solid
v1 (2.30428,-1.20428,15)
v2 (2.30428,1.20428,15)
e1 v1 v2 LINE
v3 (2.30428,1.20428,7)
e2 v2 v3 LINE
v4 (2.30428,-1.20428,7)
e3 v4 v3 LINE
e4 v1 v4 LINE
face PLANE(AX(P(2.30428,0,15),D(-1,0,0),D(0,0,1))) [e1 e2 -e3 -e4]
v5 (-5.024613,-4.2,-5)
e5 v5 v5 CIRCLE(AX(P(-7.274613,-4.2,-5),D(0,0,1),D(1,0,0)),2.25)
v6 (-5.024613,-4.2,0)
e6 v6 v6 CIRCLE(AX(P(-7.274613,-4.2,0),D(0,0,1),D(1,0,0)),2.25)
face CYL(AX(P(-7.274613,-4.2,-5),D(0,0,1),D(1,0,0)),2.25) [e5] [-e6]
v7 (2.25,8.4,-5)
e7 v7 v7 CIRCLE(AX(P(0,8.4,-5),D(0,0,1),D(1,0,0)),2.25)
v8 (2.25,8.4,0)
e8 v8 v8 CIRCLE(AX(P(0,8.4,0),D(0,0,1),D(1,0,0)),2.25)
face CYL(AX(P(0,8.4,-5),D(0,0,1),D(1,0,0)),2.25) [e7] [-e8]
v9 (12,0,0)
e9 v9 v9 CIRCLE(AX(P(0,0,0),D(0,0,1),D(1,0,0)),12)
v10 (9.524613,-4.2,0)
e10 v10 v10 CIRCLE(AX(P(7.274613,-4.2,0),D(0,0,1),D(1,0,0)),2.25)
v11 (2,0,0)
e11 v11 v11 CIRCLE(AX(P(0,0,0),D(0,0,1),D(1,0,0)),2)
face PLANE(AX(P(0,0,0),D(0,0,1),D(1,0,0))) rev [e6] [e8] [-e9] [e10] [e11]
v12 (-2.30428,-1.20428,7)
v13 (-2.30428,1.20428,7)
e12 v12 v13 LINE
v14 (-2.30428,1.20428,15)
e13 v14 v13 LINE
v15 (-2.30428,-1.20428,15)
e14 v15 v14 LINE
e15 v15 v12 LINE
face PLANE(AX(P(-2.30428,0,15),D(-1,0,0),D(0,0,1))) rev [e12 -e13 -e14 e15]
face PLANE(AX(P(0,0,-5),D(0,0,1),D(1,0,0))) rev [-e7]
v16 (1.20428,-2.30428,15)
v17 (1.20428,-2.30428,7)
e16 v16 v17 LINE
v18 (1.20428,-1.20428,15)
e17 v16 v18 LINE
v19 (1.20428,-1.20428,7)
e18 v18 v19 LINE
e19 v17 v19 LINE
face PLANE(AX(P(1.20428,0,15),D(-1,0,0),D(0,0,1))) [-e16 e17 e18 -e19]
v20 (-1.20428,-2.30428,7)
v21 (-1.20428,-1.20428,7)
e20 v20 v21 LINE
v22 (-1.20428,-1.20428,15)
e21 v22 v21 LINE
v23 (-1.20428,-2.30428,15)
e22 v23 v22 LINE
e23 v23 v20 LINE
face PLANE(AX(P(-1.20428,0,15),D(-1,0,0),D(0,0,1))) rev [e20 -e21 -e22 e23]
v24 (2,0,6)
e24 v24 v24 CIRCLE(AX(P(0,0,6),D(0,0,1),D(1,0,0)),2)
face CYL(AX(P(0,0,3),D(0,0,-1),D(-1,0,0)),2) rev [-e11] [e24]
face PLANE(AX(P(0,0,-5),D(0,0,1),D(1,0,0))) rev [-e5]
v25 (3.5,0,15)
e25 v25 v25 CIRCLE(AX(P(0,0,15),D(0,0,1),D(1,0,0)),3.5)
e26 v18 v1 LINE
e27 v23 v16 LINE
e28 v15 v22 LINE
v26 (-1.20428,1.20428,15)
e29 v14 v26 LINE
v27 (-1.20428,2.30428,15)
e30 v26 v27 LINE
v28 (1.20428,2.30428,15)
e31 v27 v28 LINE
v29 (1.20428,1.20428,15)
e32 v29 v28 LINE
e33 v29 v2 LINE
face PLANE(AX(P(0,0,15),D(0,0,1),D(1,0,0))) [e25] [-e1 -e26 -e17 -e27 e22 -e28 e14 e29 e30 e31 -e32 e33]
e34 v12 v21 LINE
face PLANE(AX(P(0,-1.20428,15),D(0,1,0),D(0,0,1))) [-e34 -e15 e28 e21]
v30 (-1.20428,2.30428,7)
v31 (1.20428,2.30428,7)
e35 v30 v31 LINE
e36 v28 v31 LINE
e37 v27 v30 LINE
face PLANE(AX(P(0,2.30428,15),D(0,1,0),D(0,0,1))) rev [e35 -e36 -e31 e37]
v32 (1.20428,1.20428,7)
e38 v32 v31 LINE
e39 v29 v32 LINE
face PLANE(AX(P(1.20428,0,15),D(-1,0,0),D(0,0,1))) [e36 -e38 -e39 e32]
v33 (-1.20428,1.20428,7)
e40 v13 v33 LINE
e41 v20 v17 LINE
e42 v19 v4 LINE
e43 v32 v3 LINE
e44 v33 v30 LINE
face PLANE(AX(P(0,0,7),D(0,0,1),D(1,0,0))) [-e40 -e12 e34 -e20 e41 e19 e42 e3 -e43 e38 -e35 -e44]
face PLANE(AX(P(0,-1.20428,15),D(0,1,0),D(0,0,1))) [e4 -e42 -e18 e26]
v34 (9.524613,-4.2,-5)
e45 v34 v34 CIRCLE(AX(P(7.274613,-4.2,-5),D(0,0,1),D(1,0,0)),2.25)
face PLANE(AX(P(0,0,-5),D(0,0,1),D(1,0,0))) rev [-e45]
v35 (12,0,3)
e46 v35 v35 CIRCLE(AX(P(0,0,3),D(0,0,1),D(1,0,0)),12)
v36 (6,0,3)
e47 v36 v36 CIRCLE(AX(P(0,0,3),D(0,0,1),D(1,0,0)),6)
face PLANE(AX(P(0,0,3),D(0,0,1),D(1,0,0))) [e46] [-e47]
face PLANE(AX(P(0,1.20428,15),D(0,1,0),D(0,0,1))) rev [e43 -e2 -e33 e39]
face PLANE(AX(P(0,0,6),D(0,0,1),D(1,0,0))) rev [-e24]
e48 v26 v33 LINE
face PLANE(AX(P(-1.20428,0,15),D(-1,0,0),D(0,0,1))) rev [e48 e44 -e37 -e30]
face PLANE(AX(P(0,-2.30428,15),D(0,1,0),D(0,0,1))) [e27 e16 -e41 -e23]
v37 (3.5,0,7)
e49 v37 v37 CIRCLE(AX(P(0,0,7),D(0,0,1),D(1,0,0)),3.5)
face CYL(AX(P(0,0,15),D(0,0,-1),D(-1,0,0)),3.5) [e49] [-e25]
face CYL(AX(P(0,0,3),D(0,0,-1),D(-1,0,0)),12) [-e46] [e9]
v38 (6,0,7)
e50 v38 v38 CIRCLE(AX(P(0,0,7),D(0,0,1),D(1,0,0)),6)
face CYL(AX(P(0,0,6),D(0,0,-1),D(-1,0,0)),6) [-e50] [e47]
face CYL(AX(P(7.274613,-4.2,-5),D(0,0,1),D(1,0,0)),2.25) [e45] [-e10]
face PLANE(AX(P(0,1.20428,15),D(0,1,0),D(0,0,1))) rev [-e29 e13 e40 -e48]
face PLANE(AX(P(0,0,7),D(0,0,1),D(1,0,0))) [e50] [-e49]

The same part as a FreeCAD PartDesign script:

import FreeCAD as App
import Part
import Sketcher

V = App.Vector


def add_polygon(sketch, points):
    """Adds a closed chain of lines whose ends are joined by coincident constraints."""
    first, n = sketch.GeometryCount, len(points)
    for a, b in zip(points, points[1:] + points[:1]):
        sketch.addGeometry(Part.LineSegment(App.Vector(*a, 0), App.Vector(*b, 0)), False)
    for i in range(n):
        sketch.addConstraint(Sketcher.Constraint("Coincident", first + i, 2, first + (i + 1) % n, 1))

doc = App.newDocument("Part")
body = doc.addObject("PartDesign::Body", "Body")

sketch1 = body.newObject("Sketcher::SketchObject", "Sketch")
sketch1.AttachmentSupport = (doc.getObject("XY_Plane"), [""])
sketch1.MapMode = "FlatFace"
sketch1.addGeometry([
    Part.Circle(V(0, 0, 0), V(0, 0, 1), 12),
    Part.Circle(V(0, 0, 0), V(0, 0, 1), 2),
], False)
sketch1.addConstraint([
    Sketcher.Constraint("Coincident", 0, 3, -1, 1),
    Sketcher.Constraint("Coincident", 1, 3, -1, 1),
    Sketcher.Constraint("Diameter", 0, 24.0),
    Sketcher.Constraint("Diameter", 1, 4.0),
])
pad1 = body.newObject("PartDesign::Pad", "Pad")
pad1.Profile = sketch1
pad1.Length = 3

sketch2 = body.newObject("Sketcher::SketchObject", "Sketch001")
sketch2.AttachmentSupport = (doc.getObject("XY_Plane"), [""])
sketch2.MapMode = "FlatFace"
sketch2.addGeometry([
    Part.Circle(V(0, 8.4, 0), V(0, 0, 1), 2.2),
    Part.Circle(V(7.3, -4.2, 0), V(0, 0, 1), 2.2),
    Part.Circle(V(-7.3, -4.2, 0), V(0, 0, 1), 2.2),
], False)
sketch2.addConstraint([
    Sketcher.Constraint("Equal", 0, 1),
    Sketcher.Constraint("Equal", 1, 2),
    Sketcher.Constraint("Symmetric", 1, 3, 2, 3, -2),
    Sketcher.Constraint("PointOnObject", 0, 3, -2),
    Sketcher.Constraint("Diameter", 0, 4.5),
    Sketcher.Constraint("DistanceY", -1, 1, 0, 3, 8.4),
    Sketcher.Constraint("DistanceY", 1, 3, -1, 1, 4.2),
    Sketcher.Constraint("DistanceX", -1, 1, 1, 3, 7.274613),
])
pad2 = body.newObject("PartDesign::Pad", "Pad001")
pad2.Profile = sketch2
pad2.Length = 5
pad2.Reversed = True

sketch3 = body.newObject("Sketcher::SketchObject", "Sketch002")
sketch3.AttachmentSupport = (doc.getObject("XY_Plane"), [""])
sketch3.MapMode = "FlatFace"
sketch3.AttachmentOffset = App.Placement(V(0, 0, 3), App.Rotation())
sketch3.addGeometry([
    Part.Circle(V(0, 0, 0), V(0, 0, 1), 6),
    Part.Circle(V(0, 0, 0), V(0, 0, 1), 2),
], False)
sketch3.addConstraint([
    Sketcher.Constraint("Coincident", 0, 3, -1, 1),
    Sketcher.Constraint("Coincident", 1, 3, -1, 1),
    Sketcher.Constraint("Diameter", 0, 12.0),
    Sketcher.Constraint("Diameter", 1, 4.0),
])
pad3 = body.newObject("PartDesign::Pad", "Pad002")
pad3.Profile = sketch3
pad3.Length = 3

sketch4 = body.newObject("Sketcher::SketchObject", "Sketch003")
sketch4.AttachmentSupport = (doc.getObject("XY_Plane"), [""])
sketch4.MapMode = "FlatFace"
sketch4.AttachmentOffset = App.Placement(V(0, 0, 6), App.Rotation())
sketch4.addGeometry(Part.Circle(V(0, 0, 0), V(0, 0, 1), 6), False)
sketch4.addConstraint([
    Sketcher.Constraint("Coincident", 0, 3, -1, 1),
    Sketcher.Constraint("Diameter", 0, 12.0),
])
pad4 = body.newObject("PartDesign::Pad", "Pad003")
pad4.Profile = sketch4
pad4.Length = 1

sketch5 = body.newObject("Sketcher::SketchObject", "Sketch004")
sketch5.AttachmentSupport = (doc.getObject("XY_Plane"), [""])
sketch5.MapMode = "FlatFace"
sketch5.AttachmentOffset = App.Placement(V(0, 0, 7), App.Rotation())
sketch5.addGeometry(Part.Circle(V(0, 0, 0), V(0, 0, 1), 3.5), False)
add_polygon(sketch5, [(-1.2, -2.3), (-1.2, -1.2), (-2.3, -1.2), (-2.3, 1.2), (-1.2, 1.2), (-1.2, 2.3), (1.2, 2.3), (1.2, 1.2), (2.3, 1.2), (2.3, -1.2), (1.2, -1.2), (1.2, -2.3)])
sketch5.addConstraint([
    Sketcher.Constraint("Vertical", 1),
    Sketcher.Constraint("Horizontal", 2),
    Sketcher.Constraint("Vertical", 3),
    Sketcher.Constraint("Horizontal", 4),
    Sketcher.Constraint("Vertical", 5),
    Sketcher.Constraint("Horizontal", 6),
    Sketcher.Constraint("Vertical", 7),
    Sketcher.Constraint("Horizontal", 8),
    Sketcher.Constraint("Vertical", 9),
    Sketcher.Constraint("Horizontal", 10),
    Sketcher.Constraint("Vertical", 11),
    Sketcher.Constraint("Horizontal", 12),
    Sketcher.Constraint("Coincident", 0, 3, -1, 1),
    Sketcher.Constraint("Symmetric", 1, 2, 7, 2, -1, 1),
    Sketcher.Constraint("Symmetric", 3, 2, 9, 2, -1, 1),
    Sketcher.Constraint("Symmetric", 5, 2, 11, 2, -1, 1),
    Sketcher.Constraint("Symmetric", 4, 2, 7, 2, -2),
    Sketcher.Constraint("Equal", 10, 1),
    Sketcher.Constraint("Equal", 12, 3),
    Sketcher.Constraint("Diameter", 0, 7.0),
    Sketcher.Constraint("DistanceX", 2, 2, 2, 1, 1.1),
    Sketcher.Constraint("DistanceX", 6, 1, 6, 2, 2.408561),
])
pad5 = body.newObject("PartDesign::Pad", "Pad004")
pad5.Profile = sketch5
pad5.Length = 8

doc.recompute()
